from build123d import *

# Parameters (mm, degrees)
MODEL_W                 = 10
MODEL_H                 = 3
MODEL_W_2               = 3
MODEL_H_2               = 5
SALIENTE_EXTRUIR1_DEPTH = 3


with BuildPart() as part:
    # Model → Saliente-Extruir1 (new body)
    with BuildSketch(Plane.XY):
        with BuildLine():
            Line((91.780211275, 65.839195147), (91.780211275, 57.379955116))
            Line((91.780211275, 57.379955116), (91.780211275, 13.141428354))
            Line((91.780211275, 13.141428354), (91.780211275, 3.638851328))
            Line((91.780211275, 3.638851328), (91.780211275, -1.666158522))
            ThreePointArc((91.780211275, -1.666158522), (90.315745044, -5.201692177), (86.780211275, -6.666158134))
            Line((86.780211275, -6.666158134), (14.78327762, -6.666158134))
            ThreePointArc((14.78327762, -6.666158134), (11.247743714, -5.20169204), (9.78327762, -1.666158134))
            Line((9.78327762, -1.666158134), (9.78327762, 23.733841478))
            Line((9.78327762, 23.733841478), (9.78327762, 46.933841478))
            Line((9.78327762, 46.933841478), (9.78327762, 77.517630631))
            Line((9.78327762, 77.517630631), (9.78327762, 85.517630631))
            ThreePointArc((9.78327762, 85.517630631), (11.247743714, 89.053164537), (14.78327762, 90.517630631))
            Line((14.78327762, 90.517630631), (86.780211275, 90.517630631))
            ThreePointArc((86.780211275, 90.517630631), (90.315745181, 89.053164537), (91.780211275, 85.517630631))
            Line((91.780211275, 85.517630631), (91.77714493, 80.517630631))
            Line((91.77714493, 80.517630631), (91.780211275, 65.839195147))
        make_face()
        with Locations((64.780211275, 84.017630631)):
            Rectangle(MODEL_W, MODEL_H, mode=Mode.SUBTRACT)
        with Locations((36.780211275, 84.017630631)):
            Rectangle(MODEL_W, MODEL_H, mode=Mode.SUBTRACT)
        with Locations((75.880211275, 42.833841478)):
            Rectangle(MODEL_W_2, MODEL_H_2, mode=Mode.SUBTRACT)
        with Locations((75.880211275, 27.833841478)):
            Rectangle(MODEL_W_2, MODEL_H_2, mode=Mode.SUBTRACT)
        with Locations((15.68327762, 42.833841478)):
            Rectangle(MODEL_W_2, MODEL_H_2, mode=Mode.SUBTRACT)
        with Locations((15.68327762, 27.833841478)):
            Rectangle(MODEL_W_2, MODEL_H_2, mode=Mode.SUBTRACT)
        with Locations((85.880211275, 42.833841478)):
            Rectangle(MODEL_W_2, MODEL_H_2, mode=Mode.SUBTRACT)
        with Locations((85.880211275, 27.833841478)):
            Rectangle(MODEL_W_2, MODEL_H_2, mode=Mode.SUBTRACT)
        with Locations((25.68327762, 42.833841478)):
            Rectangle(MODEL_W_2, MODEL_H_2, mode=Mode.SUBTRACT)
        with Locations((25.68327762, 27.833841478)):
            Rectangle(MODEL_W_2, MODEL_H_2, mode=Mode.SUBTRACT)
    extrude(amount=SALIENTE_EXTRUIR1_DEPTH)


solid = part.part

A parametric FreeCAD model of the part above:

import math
import FreeCAD as App
import Part
import Sketcher
Q = App.Units.Quantity


def add_polygon(sketch, points):
    """Adds a closed chain of lines whose ends are joined by coincident constraints."""
    first, n = sketch.GeometryCount, len(points)
    for a, b in zip(points, points[1:] + points[:1]):
        sketch.addGeometry(Part.LineSegment(App.Vector(*a, 0), App.Vector(*b, 0)), False)
    for i in range(n):
        sketch.addConstraint(Sketcher.Constraint("Coincident", first + i, 2, first + (i + 1) % n, 1))

doc = App.newDocument("Part")
body = doc.addObject("PartDesign::Body", "Body")

# Sketch on XY plane
sketch1 = body.newObject("Sketcher::SketchObject", "Sketch")
sketch1.AttachmentSupport = (doc.getObject("XY_Plane"), [""])
sketch1.MapMode = "FlatFace"
sketch1.addGeometry(Part.LineSegment(App.Vector(91.780211, -1.666159, 0), App.Vector(91.780211, 65.839195, 0)), False)  # 0
sketch1.addGeometry(Part.LineSegment(App.Vector(91.780211, 65.839195, 0), App.Vector(91.777145, 80.517631, 0)), False)  # 1
sketch1.addGeometry(Part.LineSegment(App.Vector(91.777145, 80.517631, 0), App.Vector(91.780211, 85.517631, 0)), False)  # 2
sketch1.addGeometry(Part.ArcOfCircle(Part.Circle(App.Vector(86.780211, 85.517631, 0), App.Vector(0, 0, 1), 5), math.radians(0), math.radians(90)), False)  # 3
sketch1.addGeometry(Part.LineSegment(App.Vector(86.780211, 90.517631, 0), App.Vector(14.783278, 90.517631, 0)), False)  # 4
sketch1.addGeometry(Part.ArcOfCircle(Part.Circle(App.Vector(14.783278, 85.517631, 0), App.Vector(0, 0, 1), 5), math.radians(90), math.radians(180)), False)  # 5
sketch1.addGeometry(Part.LineSegment(App.Vector(9.783278, 85.517631, 0), App.Vector(9.783278, -1.666158, 0)), False)  # 6
sketch1.addGeometry(Part.ArcOfCircle(Part.Circle(App.Vector(14.783278, -1.666158, 0), App.Vector(0, 0, 1), 5), math.radians(180), math.radians(270)), False)  # 7
sketch1.addGeometry(Part.LineSegment(App.Vector(14.783278, -6.666158, 0), App.Vector(86.780211, -6.666158, 0)), False)  # 8
sketch1.addGeometry(Part.ArcOfCircle(Part.Circle(App.Vector(86.780211, -1.666158, 0), App.Vector(0, 0, 1), 5), math.radians(-90), math.radians(-0.000004)), False)  # 9
add_polygon(sketch1, [(84.380211, 25.333841), (84.380211, 30.333841), (87.380211, 30.333841), (87.380211, 25.333841)])  # lines 10-13
add_polygon(sketch1, [(74.380211, 25.333841), (74.380211, 30.333841), (77.380211, 30.333841), (77.380211, 25.333841)])  # lines 14-17
add_polygon(sketch1, [(84.380211, 40.333841), (84.380211, 45.333841), (87.380211, 45.333841), (87.380211, 40.333841)])  # lines 18-21
add_polygon(sketch1, [(74.380211, 40.333841), (74.380211, 45.333841), (77.380211, 45.333841), (77.380211, 40.333841)])  # lines 22-25
add_polygon(sketch1, [(24.183278, 25.333841), (24.183278, 30.333841), (27.183278, 30.333841), (27.183278, 25.333841)])  # lines 26-29
add_polygon(sketch1, [(14.183278, 25.333841), (14.183278, 30.333841), (17.183278, 30.333841), (17.183278, 25.333841)])  # lines 30-33
add_polygon(sketch1, [(24.183278, 40.333841), (24.183278, 45.333841), (27.183278, 45.333841), (27.183278, 40.333841)])  # lines 34-37
add_polygon(sketch1, [(14.183278, 40.333841), (14.183278, 45.333841), (17.183278, 45.333841), (17.183278, 40.333841)])  # lines 38-41
add_polygon(sketch1, [(59.780211, 82.517631), (59.780211, 85.517631), (69.780211, 85.517631), (69.780211, 82.517631)])  # lines 42-45
add_polygon(sketch1, [(31.780211, 82.517631), (31.780211, 85.517631), (41.780211, 85.517631), (41.780211, 82.517631)])  # lines 46-49
sketch1.addConstraint([
    Sketcher.Constraint("Coincident", 0, 2, 1, 1),
    Sketcher.Constraint("Coincident", 1, 2, 2, 1),
    Sketcher.Constraint("Coincident", 2, 2, 3, 1),
    Sketcher.Constraint("Tangent", 3, 2, 4, 1),
    Sketcher.Constraint("Tangent", 4, 2, 5, 1),
    Sketcher.Constraint("Tangent", 5, 2, 6, 1),
    Sketcher.Constraint("Tangent", 6, 2, 7, 1),
    Sketcher.Constraint("Tangent", 7, 2, 8, 1),
    Sketcher.Constraint("Tangent", 8, 2, 9, 1),
    Sketcher.Constraint("Tangent", 9, 2, 0, 1),
    Sketcher.Constraint("Vertical", 0),
    Sketcher.Constraint("Horizontal", 4),
    Sketcher.Constraint("Vertical", 6),
    Sketcher.Constraint("Horizontal", 8),
    Sketcher.Constraint("Vertical", 10),
    Sketcher.Constraint("Horizontal", 11),
    Sketcher.Constraint("Vertical", 12),
    Sketcher.Constraint("Horizontal", 13),
    Sketcher.Constraint("Vertical", 14),
    Sketcher.Constraint("Horizontal", 15),
    Sketcher.Constraint("Vertical", 16),
    Sketcher.Constraint("Horizontal", 17),
    Sketcher.Constraint("Vertical", 18),
    Sketcher.Constraint("Horizontal", 19),
    Sketcher.Constraint("Vertical", 20),
    Sketcher.Constraint("Horizontal", 21),
    Sketcher.Constraint("Vertical", 22),
    Sketcher.Constraint("Horizontal", 23),
    Sketcher.Constraint("Vertical", 24),
    Sketcher.Constraint("Horizontal", 25),
    Sketcher.Constraint("Vertical", 26),
    Sketcher.Constraint("Horizontal", 27),
    Sketcher.Constraint("Vertical", 28),
    Sketcher.Constraint("Horizontal", 29),
    Sketcher.Constraint("Vertical", 30),
    Sketcher.Constraint("Horizontal", 31),
    Sketcher.Constraint("Vertical", 32),
    Sketcher.Constraint("Horizontal", 33),
    Sketcher.Constraint("Vertical", 34),
    Sketcher.Constraint("Horizontal", 35),
    Sketcher.Constraint("Vertical", 36),
    Sketcher.Constraint("Horizontal", 37),
    Sketcher.Constraint("Vertical", 38),
    Sketcher.Constraint("Horizontal", 39),
    Sketcher.Constraint("Vertical", 40),
    Sketcher.Constraint("Horizontal", 41),
    Sketcher.Constraint("Vertical", 42),
    Sketcher.Constraint("Horizontal", 43),
    Sketcher.Constraint("Vertical", 44),
    Sketcher.Constraint("Horizontal", 45),
    Sketcher.Constraint("Vertical", 46),
    Sketcher.Constraint("Horizontal", 47),
    Sketcher.Constraint("Vertical", 48),
    Sketcher.Constraint("Horizontal", 49),
    Sketcher.Constraint("Equal", 3, 5),
    Sketcher.Constraint("Equal", 5, 7),
    Sketcher.Constraint("Equal", 7, 9),
    Sketcher.Constraint("Horizontal", 5, 3, 2, 2),
    Sketcher.Constraint("Horizontal", 11, 2, 14, 2),
    Sketcher.Constraint("Horizontal", 13, 2, 16, 2),
    Sketcher.Constraint("Horizontal", 19, 2, 22, 2),
    Sketcher.Constraint("Horizontal", 21, 2, 24, 2),
    Sketcher.Constraint("Horizontal", 15, 2, 26, 2),
    Sketcher.Constraint("Horizontal", 17, 2, 28, 2),
    Sketcher.Constraint("Horizontal", 27, 2, 30, 2),
    Sketcher.Constraint("Horizontal", 29, 2, 32, 2),
    Sketcher.Constraint("Horizontal", 23, 2, 34, 2),
    Sketcher.Constraint("Horizontal", 25, 2, 36, 2),
    Sketcher.Constraint("Horizontal", 35, 2, 38, 2),
    Sketcher.Constraint("Horizontal", 37, 2, 40, 2),
    Sketcher.Constraint("Horizontal", 5, 2, 42, 2),
    Sketcher.Constraint("Horizontal", 43, 2, 46, 2),
    Sketcher.Constraint("Horizontal", 45, 2, 48, 2),
    Sketcher.Constraint("Vertical", 3, 3, 9, 3),
    Sketcher.Constraint("Vertical", 13, 2, 18, 2),
    Sketcher.Constraint("Vertical", 12, 2, 19, 2),
    Sketcher.Constraint("Vertical", 17, 2, 22, 2),
    Sketcher.Constraint("Vertical", 16, 2, 23, 2),
    Sketcher.Constraint("Vertical", 29, 2, 34, 2),
    Sketcher.Constraint("Vertical", 28, 2, 35, 2),
    Sketcher.Constraint("Vertical", 33, 2, 38, 2),
    Sketcher.Constraint("Vertical", 32, 2, 39, 2),
    Sketcher.Constraint("Equal", 13, 15),
    Sketcher.Constraint("Equal", 25, 27),
    Sketcher.Constraint("Equal", 29, 31),
    Sketcher.Constraint("Equal", 45, 47),
    Sketcher.Constraint("Equal", 16, 18),
    Sketcher.Constraint("Equal", 41, 42),
    Sketcher.Constraint("Radius", 3, Q("5 mm")),
    Sketcher.Constraint("DistanceX", 11, 1, 11, 2, Q("3 mm")),
    Sketcher.Constraint("DistanceX", 43, 1, 43, 2, Q("10 mm")),
    Sketcher.Constraint("DistanceY", 10, 1, 10, 2, Q("5 mm")),
    Sketcher.Constraint("Distance", 2, Q("5.000001 mm")),
    Sketcher.Constraint("DistanceY", 9, 3, 10, 2, Q("32 mm")),
    Sketcher.Constraint("DistanceX", 14, 2, 10, 2, Q("10 mm")),
    Sketcher.Constraint("DistanceY", 10, 2, 18, 2, Q("15 mm")),
    Sketcher.Constraint("DistanceX", 30, 2, 26, 2, Q("10 mm")),
    Sketcher.Constraint("DistanceX", 42, 2, 3, 3, Q("27 mm")),
    Sketcher.Constraint("DistanceX", 46, 2, 42, 2, Q("28 mm")),
    Sketcher.Constraint("DistanceX", 10, 2, 9, 3, Q("2.4 mm")),
    Sketcher.Constraint("DistanceX", 7, 3, 26, 2, Q("9.4 mm")),
    Sketcher.Constraint("DistanceY", 6, 2, 6, 1, Q("87.183789 mm")),
    Sketcher.Constraint("DistanceX", 4, 2, 4, 1, Q("71.996934 mm")),
    Sketcher.Constraint("DistanceY", 0, 1, 0, 2, Q("67.505354 mm")),
    Sketcher.Constraint("DistanceX", -1, 1, 3, 3, Q("86.780211 mm")),
    Sketcher.Constraint("DistanceY", -1, 1, 3, 3, Q("85.517631 mm")),
    Sketcher.Constraint("DistanceX", -1, 1, 1, 2, Q("91.777145 mm")),
])
pad1 = body.newObject("PartDesign::Pad", "Pad")
pad1.Profile = sketch1
pad1.Length = 3

doc.recompute()
